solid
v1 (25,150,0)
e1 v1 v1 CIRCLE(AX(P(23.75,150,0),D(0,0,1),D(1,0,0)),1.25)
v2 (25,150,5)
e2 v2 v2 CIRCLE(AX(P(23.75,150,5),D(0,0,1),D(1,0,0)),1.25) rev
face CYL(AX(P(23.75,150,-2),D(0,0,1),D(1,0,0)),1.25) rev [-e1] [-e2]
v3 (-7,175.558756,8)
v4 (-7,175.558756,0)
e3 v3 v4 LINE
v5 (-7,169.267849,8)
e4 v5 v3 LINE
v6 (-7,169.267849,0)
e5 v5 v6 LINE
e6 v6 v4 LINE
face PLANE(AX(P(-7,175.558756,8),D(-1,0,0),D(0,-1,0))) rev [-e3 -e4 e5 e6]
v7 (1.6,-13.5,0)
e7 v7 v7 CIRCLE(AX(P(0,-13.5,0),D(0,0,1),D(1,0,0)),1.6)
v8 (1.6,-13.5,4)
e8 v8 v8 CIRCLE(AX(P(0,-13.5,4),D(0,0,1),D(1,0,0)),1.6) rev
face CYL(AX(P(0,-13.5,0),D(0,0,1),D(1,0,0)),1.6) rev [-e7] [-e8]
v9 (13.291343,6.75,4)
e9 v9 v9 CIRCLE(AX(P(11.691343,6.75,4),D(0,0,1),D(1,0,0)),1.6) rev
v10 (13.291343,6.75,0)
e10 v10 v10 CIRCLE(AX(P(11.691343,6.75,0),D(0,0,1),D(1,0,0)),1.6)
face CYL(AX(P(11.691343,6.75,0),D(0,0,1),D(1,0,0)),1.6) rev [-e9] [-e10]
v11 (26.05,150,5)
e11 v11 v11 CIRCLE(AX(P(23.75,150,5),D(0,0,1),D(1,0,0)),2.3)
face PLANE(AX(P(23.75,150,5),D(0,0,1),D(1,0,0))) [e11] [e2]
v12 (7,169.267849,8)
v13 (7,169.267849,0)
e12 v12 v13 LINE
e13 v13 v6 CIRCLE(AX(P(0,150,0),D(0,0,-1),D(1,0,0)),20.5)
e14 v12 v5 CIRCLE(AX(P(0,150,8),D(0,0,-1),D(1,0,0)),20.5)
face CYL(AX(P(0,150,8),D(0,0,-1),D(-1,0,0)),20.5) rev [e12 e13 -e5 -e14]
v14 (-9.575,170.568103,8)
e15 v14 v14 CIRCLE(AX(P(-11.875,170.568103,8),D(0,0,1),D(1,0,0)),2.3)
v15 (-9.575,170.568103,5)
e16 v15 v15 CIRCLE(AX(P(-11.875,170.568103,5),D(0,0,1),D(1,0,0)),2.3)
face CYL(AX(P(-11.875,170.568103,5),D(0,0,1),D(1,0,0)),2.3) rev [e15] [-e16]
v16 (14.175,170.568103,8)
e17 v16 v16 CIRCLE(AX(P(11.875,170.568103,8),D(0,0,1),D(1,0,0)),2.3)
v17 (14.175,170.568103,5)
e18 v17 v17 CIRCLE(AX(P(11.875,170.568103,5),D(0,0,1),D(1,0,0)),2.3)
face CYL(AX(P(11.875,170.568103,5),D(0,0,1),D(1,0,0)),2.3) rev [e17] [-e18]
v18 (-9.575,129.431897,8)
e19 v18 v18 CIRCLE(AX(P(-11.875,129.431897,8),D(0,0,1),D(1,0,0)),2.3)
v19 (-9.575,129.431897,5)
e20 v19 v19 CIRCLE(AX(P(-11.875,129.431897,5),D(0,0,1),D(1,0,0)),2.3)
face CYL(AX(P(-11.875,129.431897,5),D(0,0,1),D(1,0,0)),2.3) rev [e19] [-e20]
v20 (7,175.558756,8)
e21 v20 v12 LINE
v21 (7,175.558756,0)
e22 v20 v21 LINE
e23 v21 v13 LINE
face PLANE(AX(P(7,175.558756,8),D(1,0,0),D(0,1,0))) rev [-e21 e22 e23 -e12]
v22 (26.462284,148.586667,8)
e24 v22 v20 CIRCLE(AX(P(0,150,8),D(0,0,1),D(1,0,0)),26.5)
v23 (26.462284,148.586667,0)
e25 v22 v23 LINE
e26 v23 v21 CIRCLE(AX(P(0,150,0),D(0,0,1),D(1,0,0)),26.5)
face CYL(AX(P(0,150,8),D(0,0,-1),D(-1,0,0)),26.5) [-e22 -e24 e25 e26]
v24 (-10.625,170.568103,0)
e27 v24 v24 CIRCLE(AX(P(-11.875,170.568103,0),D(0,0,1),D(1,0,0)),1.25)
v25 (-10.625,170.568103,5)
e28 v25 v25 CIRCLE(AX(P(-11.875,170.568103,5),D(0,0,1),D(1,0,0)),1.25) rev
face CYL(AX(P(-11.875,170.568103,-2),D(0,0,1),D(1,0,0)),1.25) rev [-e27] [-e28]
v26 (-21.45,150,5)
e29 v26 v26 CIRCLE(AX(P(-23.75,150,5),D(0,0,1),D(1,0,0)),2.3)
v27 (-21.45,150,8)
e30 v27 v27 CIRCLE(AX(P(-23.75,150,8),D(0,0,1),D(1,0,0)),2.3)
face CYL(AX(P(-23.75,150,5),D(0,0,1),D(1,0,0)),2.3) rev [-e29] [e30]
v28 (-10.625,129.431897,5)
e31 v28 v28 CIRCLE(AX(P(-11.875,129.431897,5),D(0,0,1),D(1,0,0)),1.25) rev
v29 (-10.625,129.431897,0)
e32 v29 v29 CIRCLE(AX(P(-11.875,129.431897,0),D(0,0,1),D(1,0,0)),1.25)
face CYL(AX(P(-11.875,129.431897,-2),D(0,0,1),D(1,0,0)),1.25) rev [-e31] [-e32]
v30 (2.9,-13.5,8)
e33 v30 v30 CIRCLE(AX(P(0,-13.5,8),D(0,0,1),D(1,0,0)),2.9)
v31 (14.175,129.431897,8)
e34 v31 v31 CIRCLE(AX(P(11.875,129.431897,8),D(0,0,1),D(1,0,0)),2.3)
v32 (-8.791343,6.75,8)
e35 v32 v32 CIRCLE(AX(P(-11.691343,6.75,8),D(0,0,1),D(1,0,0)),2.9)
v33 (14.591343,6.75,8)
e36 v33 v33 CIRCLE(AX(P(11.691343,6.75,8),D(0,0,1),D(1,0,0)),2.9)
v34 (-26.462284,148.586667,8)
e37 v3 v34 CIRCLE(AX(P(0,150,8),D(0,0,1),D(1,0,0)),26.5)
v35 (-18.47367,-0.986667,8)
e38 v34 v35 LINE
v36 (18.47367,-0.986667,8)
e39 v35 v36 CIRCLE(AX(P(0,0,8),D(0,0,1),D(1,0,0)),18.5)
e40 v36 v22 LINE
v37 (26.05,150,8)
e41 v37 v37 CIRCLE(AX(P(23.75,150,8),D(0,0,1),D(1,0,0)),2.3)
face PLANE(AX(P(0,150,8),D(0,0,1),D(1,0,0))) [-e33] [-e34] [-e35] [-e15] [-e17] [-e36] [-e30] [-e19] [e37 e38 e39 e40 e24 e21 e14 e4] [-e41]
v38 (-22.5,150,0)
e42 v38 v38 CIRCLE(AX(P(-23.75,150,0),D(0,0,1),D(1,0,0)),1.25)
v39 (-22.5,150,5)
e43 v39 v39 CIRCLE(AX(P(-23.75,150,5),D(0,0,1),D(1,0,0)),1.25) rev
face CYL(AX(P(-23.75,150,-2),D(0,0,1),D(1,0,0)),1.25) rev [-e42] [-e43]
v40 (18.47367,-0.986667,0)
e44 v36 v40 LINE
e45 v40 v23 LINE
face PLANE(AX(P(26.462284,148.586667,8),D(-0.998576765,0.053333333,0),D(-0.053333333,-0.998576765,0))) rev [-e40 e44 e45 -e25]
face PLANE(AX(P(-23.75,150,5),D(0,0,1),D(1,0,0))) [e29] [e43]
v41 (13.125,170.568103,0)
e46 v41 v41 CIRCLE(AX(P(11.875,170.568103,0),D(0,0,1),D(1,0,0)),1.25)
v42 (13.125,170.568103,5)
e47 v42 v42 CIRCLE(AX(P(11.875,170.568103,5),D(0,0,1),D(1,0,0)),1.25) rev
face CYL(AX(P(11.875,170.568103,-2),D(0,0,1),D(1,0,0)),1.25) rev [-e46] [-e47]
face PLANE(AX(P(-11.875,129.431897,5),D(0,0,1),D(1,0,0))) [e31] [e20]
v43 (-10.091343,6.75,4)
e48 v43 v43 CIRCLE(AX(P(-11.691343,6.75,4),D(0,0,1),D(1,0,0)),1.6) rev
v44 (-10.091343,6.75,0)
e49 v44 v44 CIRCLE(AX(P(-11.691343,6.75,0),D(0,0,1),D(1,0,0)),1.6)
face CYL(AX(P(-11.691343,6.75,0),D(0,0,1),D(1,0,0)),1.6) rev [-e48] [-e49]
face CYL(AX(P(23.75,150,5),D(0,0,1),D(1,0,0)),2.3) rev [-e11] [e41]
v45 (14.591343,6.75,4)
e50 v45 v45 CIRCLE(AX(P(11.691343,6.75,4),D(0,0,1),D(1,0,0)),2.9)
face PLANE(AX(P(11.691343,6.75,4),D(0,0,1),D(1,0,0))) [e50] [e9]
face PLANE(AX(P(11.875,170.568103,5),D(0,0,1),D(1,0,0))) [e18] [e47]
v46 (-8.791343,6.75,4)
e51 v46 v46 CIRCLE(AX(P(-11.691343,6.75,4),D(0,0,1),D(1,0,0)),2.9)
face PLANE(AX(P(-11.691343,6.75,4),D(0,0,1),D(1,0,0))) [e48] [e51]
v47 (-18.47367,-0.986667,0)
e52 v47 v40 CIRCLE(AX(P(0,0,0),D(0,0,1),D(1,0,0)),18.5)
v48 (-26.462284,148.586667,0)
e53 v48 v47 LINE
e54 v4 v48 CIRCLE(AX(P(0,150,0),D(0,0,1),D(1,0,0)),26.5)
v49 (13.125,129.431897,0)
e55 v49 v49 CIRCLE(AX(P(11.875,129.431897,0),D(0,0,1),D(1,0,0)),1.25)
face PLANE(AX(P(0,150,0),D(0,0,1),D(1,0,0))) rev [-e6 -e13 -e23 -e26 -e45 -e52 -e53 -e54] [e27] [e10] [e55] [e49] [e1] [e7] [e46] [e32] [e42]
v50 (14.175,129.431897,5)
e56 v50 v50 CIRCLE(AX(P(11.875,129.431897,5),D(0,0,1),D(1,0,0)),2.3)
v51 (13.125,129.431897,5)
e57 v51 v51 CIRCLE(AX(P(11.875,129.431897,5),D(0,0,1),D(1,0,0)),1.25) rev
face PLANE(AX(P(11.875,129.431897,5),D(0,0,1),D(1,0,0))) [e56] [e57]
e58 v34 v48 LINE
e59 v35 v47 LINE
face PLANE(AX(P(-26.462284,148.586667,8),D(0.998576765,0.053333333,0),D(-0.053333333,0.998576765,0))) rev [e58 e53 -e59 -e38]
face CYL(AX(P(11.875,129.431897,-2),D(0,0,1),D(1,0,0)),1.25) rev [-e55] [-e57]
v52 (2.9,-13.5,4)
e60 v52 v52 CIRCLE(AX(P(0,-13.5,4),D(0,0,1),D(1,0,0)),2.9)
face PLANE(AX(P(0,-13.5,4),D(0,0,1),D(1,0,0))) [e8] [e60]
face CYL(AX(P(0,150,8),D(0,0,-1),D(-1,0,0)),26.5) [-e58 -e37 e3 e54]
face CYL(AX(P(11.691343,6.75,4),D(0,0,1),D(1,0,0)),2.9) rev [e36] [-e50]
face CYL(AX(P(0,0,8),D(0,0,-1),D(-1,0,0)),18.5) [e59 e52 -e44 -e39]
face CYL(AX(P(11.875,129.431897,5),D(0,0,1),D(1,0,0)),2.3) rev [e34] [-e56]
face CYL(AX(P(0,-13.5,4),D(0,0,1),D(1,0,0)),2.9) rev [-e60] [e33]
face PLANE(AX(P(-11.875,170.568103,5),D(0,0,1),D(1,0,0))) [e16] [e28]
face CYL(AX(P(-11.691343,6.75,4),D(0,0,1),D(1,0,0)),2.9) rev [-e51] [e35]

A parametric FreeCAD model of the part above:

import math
import FreeCAD as App
import Part
import Sketcher

V = App.Vector
Q = App.Units.Quantity

doc = App.newDocument("Part")
body = doc.addObject("PartDesign::Body", "Body")

sketch1 = body.newObject("Sketcher::SketchObject", "Sketch")
sketch1.AttachmentSupport = (doc.getObject("XY_Plane"), [""])
sketch1.MapMode = "FlatFace"
sketch1.addGeometry(Part.LineSegment(V(-26.462284, 148.586667, 0), V(-18.47367, -0.986667, 0)), False)
sketch1.addGeometry(Part.ArcOfCircle(Part.Circle(V(0, 0, 0), V(0, 0, 1), 18.5), math.radians(-176.942775), math.radians(-3.057225)), False)
sketch1.addGeometry(Part.LineSegment(V(18.47367, -0.986667, 0), V(26.462284, 148.586667, 0)), False)
sketch1.addGeometry(Part.ArcOfCircle(Part.Circle(V(0, 150, 0), V(0, 0, 1), 26.5), math.radians(-3.057225), math.radians(74.683492)), False)
sketch1.addGeometry(Part.LineSegment(V(7, 175.558756, 0), V(7, 169.267849, 0)), False)
sketch1.addGeometry(Part.ArcOfCircle(Part.Circle(V(0, 150, 0), V(0, 0, 1), 20.5), math.radians(109.966058), math.radians(430.033942)), False)
sketch1.addGeometry(Part.LineSegment(V(-7, 169.267849, 0), V(-7, 175.558756, 0)), False)
sketch1.addGeometry(Part.ArcOfCircle(Part.Circle(V(0, 150, 0), V(0, 0, 1), 26.5), math.radians(105.316508), math.radians(183.057225)), False)
sketch1.addConstraint(Sketcher.Constraint("Tangent", 0, 2, 1, 1))
sketch1.addConstraint(Sketcher.Constraint("Tangent", 1, 2, 2, 1))
sketch1.addConstraint(Sketcher.Constraint("Tangent", 2, 2, 3, 1))
sketch1.addConstraint(Sketcher.Constraint("Coincident", 3, 2, 4, 1))
sketch1.addConstraint(Sketcher.Constraint("Coincident", 4, 2, 5, 2))
sketch1.addConstraint(Sketcher.Constraint("Coincident", 5, 1, 6, 1))
sketch1.addConstraint(Sketcher.Constraint("Coincident", 6, 2, 7, 1))
sketch1.addConstraint(Sketcher.Constraint("Tangent", 7, 2, 0, 1))
sketch1.addConstraint(Sketcher.Constraint("Vertical", 4))
sketch1.addConstraint(Sketcher.Constraint("Vertical", 6))
sketch1.addConstraint(Sketcher.Constraint("Coincident", 1, 3, -1, 1))
sketch1.addConstraint(Sketcher.Constraint("Coincident", 5, 3, 3, 3))
sketch1.addConstraint(Sketcher.Constraint("Coincident", 7, 3, 3, 3))
sketch1.addConstraint(Sketcher.Constraint("Equal", 3, 7))
sketch1.addConstraint(Sketcher.Constraint("Symmetric", 4, 2, 5, 1, -2))
sketch1.addConstraint(Sketcher.Constraint("Radius", 1, Q("18.5 mm")))
sketch1.addConstraint(Sketcher.Constraint("Radius", 3, Q("26.5 mm")))
sketch1.addConstraint(Sketcher.Constraint("Radius", 5, Q("20.5 mm")))
sketch1.addConstraint(Sketcher.Constraint("DistanceY", -1, 1, 3, 3, Q("150 mm")))
sketch1.addConstraint(Sketcher.Constraint("DistanceX", -1, 1, 3, 2, Q("7 mm")))
pad1 = body.newObject("PartDesign::Pad", "Pad")
pad1.Profile = sketch1
pad1.Length = 8

sketch2 = body.newObject("Sketcher::SketchObject", "Sketch001")
sketch2.AttachmentSupport = (doc.getObject("XY_Plane"), [""])
sketch2.MapMode = "FlatFace"
sketch2.AttachmentOffset = App.Placement(V(0, 0, 8), App.Rotation())
sketch2.addGeometry(Part.Circle(V(0, -13.5, 0), V(0, 0, 1), 1.6), False)
sketch2.addGeometry(Part.Circle(V(-11.691343, 6.75, 0), V(0, 0, 1), 1.6), False)
sketch2.addGeometry(Part.Circle(V(11.691343, 6.75, 0), V(0, 0, 1), 1.6), False)
sketch2.addConstraint(Sketcher.Constraint("Equal", 0, 1))
sketch2.addConstraint(Sketcher.Constraint("Equal", 1, 2))
sketch2.addConstraint(Sketcher.Constraint("Symmetric", 1, 3, 2, 3, -2))
sketch2.addConstraint(Sketcher.Constraint("PointOnObject", 0, 3, -2))
sketch2.addConstraint(Sketcher.Constraint("Diameter", 0, Q("3.2 mm")))
sketch2.addConstraint(Sketcher.Constraint("DistanceY", 0, 3, -1, 1, Q("13.5 mm")))
sketch2.addConstraint(Sketcher.Constraint("DistanceY", -1, 1, 1, 3, Q("6.75 mm")))
sketch2.addConstraint(Sketcher.Constraint("DistanceX", 1, 3, -1, 1, Q("11.691343 mm")))
pocket1 = body.newObject("PartDesign::Pocket", "Pocket")
pocket1.Profile = sketch2
pocket1.Length = 8

sketch3 = body.newObject("Sketcher::SketchObject", "Sketch002")
sketch3.AttachmentSupport = (doc.getObject("XY_Plane"), [""])
sketch3.MapMode = "FlatFace"
sketch3.AttachmentOffset = App.Placement(V(0, 0, 8), App.Rotation())
sketch3.addGeometry(Part.Circle(V(23.75, 150, 0), V(0, 0, 1), 1.25), False)
sketch3.addGeometry(Part.Circle(V(11.875, 129.431897, 0), V(0, 0, 1), 1.25), False)
sketch3.addGeometry(Part.Circle(V(-11.875, 129.431897, 0), V(0, 0, 1), 1.25), False)
sketch3.addGeometry(Part.Circle(V(-23.75, 150, 0), V(0, 0, 1), 1.25), False)
sketch3.addGeometry(Part.Circle(V(-11.875, 170.568103, 0), V(0, 0, 1), 1.25), False)
sketch3.addGeometry(Part.Circle(V(11.875, 170.568103, 0), V(0, 0, 1), 1.25), False)
sketch3.addConstraint(Sketcher.Constraint("Equal", 0, 1))
sketch3.addConstraint(Sketcher.Constraint("Equal", 1, 2))
sketch3.addConstraint(Sketcher.Constraint("Equal", 2, 3))
sketch3.addConstraint(Sketcher.Constraint("Equal", 3, 4))
sketch3.addConstraint(Sketcher.Constraint("Equal", 4, 5))
sketch3.addConstraint(Sketcher.Constraint("Symmetric", 1, 3, 2, 3, -2))
sketch3.addConstraint(Sketcher.Constraint("Symmetric", 0, 3, 3, 3, -2))
sketch3.addConstraint(Sketcher.Constraint("Symmetric", 4, 3, 5, 3, -2))
sketch3.addConstraint(Sketcher.Constraint("Vertical", 2, 3, 4, 3))
sketch3.addConstraint(Sketcher.Constraint("Diameter", 0, Q("2.5 mm")))
sketch3.addConstraint(Sketcher.Constraint("DistanceY", -1, 1, 0, 3, Q("150 mm")))
sketch3.addConstraint(Sketcher.Constraint("DistanceX", 3, 3, 0, 3, Q("47.5 mm")))
sketch3.addConstraint(Sketcher.Constraint("DistanceX", 2, 3, 1, 3, Q("23.75 mm")))
sketch3.addConstraint(Sketcher.Constraint("DistanceY", -1, 1, 1, 3, Q("129.431897 mm")))
sketch3.addConstraint(Sketcher.Constraint("DistanceY", -1, 1, 4, 3, Q("170.568103 mm")))
pocket2 = body.newObject("PartDesign::Pocket", "Pocket001")
pocket2.Profile = sketch3
pocket2.Length = 10

sketch4 = body.newObject("Sketcher::SketchObject", "Sketch003")
sketch4.AttachmentSupport = (doc.getObject("XY_Plane"), [""])
sketch4.MapMode = "FlatFace"
sketch4.AttachmentOffset = App.Placement(V(0, 0, 8), App.Rotation())
sketch4.addGeometry(Part.Circle(V(-11.691343, 6.75, 0), V(0, 0, 1), 2.9), False)
sketch4.addGeometry(Part.Circle(V(11.691343, 6.75, 0), V(0, 0, 1), 2.9), False)
sketch4.addGeometry(Part.Circle(V(0, -13.5, 0), V(0, 0, 1), 2.9), False)
sketch4.addConstraint(Sketcher.Constraint("Equal", 0, 1))
sketch4.addConstraint(Sketcher.Constraint("Equal", 1, 2))
sketch4.addConstraint(Sketcher.Constraint("Symmetric", 0, 3, 1, 3, -2))
sketch4.addConstraint(Sketcher.Constraint("PointOnObject", 2, 3, -2))
sketch4.addConstraint(Sketcher.Constraint("Diameter", 0, Q("5.8 mm")))
sketch4.addConstraint(Sketcher.Constraint("DistanceY", 2, 3, -1, 1, Q("13.5 mm")))
sketch4.addConstraint(Sketcher.Constraint("DistanceY", -1, 1, 0, 3, Q("6.75 mm")))
sketch4.addConstraint(Sketcher.Constraint("DistanceX", 0, 3, -1, 1, Q("11.691343 mm")))
pocket3 = body.newObject("PartDesign::Pocket", "Pocket002")
pocket3.Profile = sketch4
pocket3.Length = 4

sketch5 = body.newObject("Sketcher::SketchObject", "Sketch004")
sketch5.AttachmentSupport = (doc.getObject("XY_Plane"), [""])
sketch5.MapMode = "FlatFace"
sketch5.AttachmentOffset = App.Placement(V(0, 0, 8), App.Rotation())
sketch5.addGeometry(Part.Circle(V(23.75, 150, 0), V(0, 0, 1), 2.3), False)
sketch5.addGeometry(Part.Circle(V(11.875, 129.431897, 0), V(0, 0, 1), 2.3), False)
sketch5.addGeometry(Part.Circle(V(-11.875, 129.431897, 0), V(0, 0, 1), 2.3), False)
sketch5.addGeometry(Part.Circle(V(-23.75, 150, 0), V(0, 0, 1), 2.3), False)
sketch5.addGeometry(Part.Circle(V(-11.875, 170.568103, 0), V(0, 0, 1), 2.3), False)
sketch5.addGeometry(Part.Circle(V(11.875, 170.568103, 0), V(0, 0, 1), 2.3), False)
sketch5.addConstraint(Sketcher.Constraint("Equal", 0, 1))
sketch5.addConstraint(Sketcher.Constraint("Equal", 1, 2))
sketch5.addConstraint(Sketcher.Constraint("Equal", 2, 3))
sketch5.addConstraint(Sketcher.Constraint("Equal", 3, 4))
sketch5.addConstraint(Sketcher.Constraint("Equal", 4, 5))
sketch5.addConstraint(Sketcher.Constraint("Symmetric", 1, 3, 2, 3, -2))
sketch5.addConstraint(Sketcher.Constraint("Symmetric", 0, 3, 3, 3, -2))
sketch5.addConstraint(Sketcher.Constraint("Symmetric", 4, 3, 5, 3, -2))
sketch5.addConstraint(Sketcher.Constraint("Vertical", 2, 3, 4, 3))
sketch5.addConstraint(Sketcher.Constraint("Diameter", 0, Q("4.6 mm")))
sketch5.addConstraint(Sketcher.Constraint("DistanceY", -1, 1, 0, 3, Q("150 mm")))
sketch5.addConstraint(Sketcher.Constraint("DistanceX", 3, 3, 0, 3, Q("47.5 mm")))
sketch5.addConstraint(Sketcher.Constraint("DistanceX", 2, 3, 1, 3, Q("23.75 mm")))
sketch5.addConstraint(Sketcher.Constraint("DistanceY", -1, 1, 1, 3, Q("129.431897 mm")))
sketch5.addConstraint(Sketcher.Constraint("DistanceY", -1, 1, 4, 3, Q("170.568103 mm")))
pocket4 = body.newObject("PartDesign::Pocket", "Pocket003")
pocket4.Profile = sketch5
pocket4.Length = 3

doc.recompute()
